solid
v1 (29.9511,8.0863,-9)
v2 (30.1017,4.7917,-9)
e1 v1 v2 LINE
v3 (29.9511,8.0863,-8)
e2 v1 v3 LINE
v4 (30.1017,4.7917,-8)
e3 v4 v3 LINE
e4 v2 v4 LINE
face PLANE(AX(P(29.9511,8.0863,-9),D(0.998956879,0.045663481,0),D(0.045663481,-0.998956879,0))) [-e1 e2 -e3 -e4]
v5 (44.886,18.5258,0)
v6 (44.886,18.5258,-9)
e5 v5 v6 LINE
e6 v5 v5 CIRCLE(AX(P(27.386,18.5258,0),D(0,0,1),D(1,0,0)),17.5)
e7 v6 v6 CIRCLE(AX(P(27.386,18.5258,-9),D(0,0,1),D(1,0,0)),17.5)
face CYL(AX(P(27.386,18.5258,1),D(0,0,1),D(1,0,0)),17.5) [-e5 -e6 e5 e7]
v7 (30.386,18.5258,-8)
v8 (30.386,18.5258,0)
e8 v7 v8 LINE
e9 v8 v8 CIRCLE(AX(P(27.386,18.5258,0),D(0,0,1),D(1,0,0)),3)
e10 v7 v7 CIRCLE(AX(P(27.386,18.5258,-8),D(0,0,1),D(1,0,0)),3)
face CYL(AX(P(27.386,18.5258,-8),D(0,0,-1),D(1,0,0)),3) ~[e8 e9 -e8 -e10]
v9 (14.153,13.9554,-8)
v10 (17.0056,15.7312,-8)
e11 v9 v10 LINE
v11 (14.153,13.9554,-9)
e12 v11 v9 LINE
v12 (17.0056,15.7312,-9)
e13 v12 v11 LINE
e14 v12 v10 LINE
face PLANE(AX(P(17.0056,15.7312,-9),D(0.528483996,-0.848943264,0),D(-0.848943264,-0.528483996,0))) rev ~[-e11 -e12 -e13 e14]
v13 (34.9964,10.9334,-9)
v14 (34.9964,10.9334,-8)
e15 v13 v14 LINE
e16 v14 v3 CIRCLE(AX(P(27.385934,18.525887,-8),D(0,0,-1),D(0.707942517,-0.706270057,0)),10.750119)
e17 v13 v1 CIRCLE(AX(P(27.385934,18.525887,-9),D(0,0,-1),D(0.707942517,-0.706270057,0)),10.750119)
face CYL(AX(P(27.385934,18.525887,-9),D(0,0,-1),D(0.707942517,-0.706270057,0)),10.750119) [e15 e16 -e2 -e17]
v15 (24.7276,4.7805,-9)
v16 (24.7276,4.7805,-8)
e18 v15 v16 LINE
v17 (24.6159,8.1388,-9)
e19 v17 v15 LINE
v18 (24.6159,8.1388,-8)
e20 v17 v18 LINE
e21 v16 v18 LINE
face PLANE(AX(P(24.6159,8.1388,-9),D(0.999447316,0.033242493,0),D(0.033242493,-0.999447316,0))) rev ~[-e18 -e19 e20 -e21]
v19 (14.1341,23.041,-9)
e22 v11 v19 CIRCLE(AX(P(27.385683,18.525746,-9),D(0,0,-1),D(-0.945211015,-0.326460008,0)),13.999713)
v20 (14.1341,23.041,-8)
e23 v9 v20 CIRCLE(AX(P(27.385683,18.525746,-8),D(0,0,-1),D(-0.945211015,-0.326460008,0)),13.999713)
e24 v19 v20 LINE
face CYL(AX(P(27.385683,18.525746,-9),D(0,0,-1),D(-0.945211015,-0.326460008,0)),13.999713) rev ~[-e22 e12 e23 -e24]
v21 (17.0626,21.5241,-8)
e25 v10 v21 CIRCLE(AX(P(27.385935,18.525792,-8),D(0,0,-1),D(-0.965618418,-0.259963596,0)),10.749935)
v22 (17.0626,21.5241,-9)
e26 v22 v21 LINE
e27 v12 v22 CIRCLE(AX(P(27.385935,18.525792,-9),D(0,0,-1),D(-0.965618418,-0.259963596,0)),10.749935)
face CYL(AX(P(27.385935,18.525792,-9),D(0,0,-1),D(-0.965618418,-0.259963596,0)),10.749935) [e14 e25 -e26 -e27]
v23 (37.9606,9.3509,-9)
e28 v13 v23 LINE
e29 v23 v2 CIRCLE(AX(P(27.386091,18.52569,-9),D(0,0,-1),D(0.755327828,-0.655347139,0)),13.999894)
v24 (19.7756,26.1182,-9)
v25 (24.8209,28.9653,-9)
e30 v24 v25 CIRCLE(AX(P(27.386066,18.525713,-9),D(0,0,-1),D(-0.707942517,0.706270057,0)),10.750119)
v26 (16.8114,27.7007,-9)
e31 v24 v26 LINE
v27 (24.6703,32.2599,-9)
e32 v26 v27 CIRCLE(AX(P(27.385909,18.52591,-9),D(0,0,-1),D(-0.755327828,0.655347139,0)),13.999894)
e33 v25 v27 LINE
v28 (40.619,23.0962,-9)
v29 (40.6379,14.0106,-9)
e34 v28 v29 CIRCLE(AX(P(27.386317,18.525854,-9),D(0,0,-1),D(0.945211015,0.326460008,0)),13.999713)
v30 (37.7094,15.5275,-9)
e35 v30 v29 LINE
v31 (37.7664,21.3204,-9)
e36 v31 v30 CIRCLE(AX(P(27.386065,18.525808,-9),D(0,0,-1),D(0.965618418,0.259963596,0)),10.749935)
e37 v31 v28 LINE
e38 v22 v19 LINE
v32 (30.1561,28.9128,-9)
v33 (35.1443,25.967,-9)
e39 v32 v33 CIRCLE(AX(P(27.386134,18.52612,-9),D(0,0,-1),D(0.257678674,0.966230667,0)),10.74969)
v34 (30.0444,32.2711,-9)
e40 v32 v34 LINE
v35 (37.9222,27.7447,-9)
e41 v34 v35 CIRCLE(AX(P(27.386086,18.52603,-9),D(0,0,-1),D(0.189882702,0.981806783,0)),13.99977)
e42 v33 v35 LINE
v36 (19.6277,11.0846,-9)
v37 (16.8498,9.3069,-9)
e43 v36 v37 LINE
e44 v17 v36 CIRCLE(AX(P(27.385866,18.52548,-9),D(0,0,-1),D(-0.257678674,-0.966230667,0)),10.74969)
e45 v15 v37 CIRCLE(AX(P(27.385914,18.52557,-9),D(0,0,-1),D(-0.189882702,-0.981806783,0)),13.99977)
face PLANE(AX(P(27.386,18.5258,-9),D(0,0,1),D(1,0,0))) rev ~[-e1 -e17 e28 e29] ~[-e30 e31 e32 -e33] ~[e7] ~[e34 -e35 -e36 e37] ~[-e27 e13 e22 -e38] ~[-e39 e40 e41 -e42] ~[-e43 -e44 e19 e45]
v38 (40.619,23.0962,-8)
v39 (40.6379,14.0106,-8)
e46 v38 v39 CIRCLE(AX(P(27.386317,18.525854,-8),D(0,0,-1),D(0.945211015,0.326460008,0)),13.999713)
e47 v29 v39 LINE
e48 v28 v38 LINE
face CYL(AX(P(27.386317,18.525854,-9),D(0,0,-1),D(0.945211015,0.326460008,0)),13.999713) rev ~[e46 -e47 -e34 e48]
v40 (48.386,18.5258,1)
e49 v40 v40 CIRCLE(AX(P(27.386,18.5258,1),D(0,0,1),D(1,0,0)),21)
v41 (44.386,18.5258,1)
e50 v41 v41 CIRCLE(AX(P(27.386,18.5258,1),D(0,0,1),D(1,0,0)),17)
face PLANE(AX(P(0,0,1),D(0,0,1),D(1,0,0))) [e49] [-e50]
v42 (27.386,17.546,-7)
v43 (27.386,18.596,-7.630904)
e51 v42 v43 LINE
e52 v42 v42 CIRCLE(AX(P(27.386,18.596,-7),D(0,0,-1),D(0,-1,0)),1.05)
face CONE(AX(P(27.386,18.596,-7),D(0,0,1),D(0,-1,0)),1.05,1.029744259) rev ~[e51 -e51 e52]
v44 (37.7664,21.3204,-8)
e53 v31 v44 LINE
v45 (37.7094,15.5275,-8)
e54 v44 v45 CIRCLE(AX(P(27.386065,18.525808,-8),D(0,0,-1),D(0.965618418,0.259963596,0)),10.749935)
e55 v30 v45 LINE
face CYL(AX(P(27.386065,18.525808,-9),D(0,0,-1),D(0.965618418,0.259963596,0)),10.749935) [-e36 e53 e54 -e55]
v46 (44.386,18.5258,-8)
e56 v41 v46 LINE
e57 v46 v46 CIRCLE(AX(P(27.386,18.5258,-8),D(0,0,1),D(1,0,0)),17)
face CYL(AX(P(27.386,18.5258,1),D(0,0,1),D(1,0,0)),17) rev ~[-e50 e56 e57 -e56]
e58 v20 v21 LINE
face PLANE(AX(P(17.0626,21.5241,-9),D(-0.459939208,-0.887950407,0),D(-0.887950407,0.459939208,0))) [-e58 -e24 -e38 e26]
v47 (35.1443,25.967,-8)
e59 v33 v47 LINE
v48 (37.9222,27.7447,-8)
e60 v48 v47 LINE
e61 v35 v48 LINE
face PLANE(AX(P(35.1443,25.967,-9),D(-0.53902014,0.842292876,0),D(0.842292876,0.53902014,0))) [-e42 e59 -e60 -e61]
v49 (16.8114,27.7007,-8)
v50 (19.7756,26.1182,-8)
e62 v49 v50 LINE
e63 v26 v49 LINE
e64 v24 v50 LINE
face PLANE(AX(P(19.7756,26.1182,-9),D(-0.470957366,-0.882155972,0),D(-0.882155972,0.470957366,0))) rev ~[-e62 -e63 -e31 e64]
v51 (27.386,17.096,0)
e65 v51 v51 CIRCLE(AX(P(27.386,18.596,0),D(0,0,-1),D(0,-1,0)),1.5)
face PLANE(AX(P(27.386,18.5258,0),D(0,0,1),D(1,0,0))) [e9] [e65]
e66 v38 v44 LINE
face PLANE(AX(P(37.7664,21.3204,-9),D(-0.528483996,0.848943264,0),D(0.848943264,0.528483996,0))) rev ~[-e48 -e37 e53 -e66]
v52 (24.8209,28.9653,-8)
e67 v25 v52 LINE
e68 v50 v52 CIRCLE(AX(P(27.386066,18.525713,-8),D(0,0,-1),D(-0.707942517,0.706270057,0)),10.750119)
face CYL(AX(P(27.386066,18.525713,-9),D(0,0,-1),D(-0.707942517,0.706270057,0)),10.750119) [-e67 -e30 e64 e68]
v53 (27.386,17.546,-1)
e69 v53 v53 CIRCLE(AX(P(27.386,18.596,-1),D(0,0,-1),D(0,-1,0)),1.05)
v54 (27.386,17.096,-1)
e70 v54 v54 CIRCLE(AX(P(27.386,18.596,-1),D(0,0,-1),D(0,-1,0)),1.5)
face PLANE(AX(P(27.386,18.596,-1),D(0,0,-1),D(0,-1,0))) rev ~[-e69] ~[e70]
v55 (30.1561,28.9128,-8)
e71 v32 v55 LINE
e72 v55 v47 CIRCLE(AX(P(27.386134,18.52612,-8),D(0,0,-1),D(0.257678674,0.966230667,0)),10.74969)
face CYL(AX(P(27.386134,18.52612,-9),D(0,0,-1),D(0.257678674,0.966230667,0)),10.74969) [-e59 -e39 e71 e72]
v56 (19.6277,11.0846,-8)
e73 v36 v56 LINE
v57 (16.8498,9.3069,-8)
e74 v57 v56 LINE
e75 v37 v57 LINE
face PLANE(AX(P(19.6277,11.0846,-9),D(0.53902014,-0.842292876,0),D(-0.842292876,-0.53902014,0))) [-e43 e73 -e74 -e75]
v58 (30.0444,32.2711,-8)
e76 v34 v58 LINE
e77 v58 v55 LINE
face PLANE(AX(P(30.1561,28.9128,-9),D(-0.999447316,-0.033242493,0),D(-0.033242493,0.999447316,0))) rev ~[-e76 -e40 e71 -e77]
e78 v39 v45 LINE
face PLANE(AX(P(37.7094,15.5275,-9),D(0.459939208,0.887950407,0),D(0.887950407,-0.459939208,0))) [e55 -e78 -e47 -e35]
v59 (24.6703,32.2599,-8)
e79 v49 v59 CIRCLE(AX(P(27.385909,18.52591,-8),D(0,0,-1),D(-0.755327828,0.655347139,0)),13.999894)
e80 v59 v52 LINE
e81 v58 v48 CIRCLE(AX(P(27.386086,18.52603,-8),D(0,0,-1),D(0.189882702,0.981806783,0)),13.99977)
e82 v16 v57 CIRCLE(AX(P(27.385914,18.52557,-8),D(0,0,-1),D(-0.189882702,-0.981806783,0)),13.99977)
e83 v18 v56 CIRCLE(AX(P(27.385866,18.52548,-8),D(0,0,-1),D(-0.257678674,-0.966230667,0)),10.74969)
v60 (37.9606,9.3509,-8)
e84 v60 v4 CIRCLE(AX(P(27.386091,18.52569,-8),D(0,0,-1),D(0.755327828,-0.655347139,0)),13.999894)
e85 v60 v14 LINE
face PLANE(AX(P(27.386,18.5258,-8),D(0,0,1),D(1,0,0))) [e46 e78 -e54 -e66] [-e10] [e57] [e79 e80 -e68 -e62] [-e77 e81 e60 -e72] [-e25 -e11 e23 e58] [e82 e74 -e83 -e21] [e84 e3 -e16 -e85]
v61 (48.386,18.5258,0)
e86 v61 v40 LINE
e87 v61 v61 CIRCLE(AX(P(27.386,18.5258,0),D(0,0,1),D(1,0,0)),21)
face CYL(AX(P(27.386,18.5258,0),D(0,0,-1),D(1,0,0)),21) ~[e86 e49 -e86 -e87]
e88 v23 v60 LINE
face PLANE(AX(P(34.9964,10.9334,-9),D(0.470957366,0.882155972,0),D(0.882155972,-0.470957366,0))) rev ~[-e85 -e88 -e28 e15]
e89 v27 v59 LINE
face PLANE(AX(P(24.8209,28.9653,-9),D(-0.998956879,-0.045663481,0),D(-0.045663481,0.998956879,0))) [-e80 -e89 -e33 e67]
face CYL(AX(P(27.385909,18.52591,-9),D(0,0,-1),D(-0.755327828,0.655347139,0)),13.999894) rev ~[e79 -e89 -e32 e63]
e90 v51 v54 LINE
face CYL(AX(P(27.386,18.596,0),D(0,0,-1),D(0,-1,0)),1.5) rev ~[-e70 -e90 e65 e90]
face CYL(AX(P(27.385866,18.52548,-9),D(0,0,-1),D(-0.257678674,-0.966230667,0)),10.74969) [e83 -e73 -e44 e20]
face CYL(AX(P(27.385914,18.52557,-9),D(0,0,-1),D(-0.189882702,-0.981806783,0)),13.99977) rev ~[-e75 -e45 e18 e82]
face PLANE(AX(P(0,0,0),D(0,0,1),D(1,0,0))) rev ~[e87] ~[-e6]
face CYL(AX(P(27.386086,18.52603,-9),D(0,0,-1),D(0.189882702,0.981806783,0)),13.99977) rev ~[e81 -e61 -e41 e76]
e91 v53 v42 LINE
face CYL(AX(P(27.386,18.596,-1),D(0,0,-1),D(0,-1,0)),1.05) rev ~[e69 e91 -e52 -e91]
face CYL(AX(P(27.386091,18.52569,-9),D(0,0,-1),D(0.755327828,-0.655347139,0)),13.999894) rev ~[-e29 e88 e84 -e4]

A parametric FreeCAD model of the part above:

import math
import FreeCAD as App
import Part
import Sketcher

V = App.Vector

doc = App.newDocument("Part")
params = doc.addObject("Spreadsheet::Sheet", "Params")
for row, (alias, value) in enumerate([
    ("sketch1_diameter", "42 mm"),
    ("sketch1_diameter2", "34 mm"),
    ("pad1_length", "1 mm"),
    ("sketch2_diameter", "35 mm"),
    ("pad2_length", "10 mm"),
    ("sketch3_diameter", "34 mm"),
    ("pocket1_length", "9 mm"),
    ("sketch4_radius", "14 mm"),
    ("sketch4_radius2", "10.75 mm"),
    ("pocket2_length", "2 mm"),
    ("sketch5_diameter", "6 mm"),
    ("pad3_length", "8 mm"),
    ("sketch6_diameter", "2.1 mm"),
    ("hole_diameter", "2.1 mm"),
    ("hole_depth", "7 mm"),
    ("hole_cbore_diameter", "3 mm"),
    ("hole_cbore_depth", "1 mm"),
], start=1):
    params.set(f"A{row}", alias)
    params.set(f"B{row}", "=" + value)
    params.setAlias(f"B{row}", alias)

body = doc.addObject("PartDesign::Body", "Body")

# Sketch on XY plane
sketch1 = body.newObject("Sketcher::SketchObject", "Sketch")
sketch1.AttachmentSupport = (doc.getObject("XY_Plane"), [""])
sketch1.MapMode = "FlatFace"
sketch1.addGeometry([
    Part.Circle(V(27, 19, 0), V(0, 0, 1), 21),
    Part.Circle(V(27, 19, 0), V(0, 0, 1), 17),
], False)
sketch1.addConstraint([
    Sketcher.Constraint("Coincident", 1, 3, 0, 3),
    Sketcher.Constraint("Diameter", 0, 42.0),
    Sketcher.Constraint("Diameter", 1, 34.0),
    Sketcher.Constraint("DistanceX", -1, 1, 0, 3, 27.386),
    Sketcher.Constraint("DistanceY", -1, 1, 0, 3, 18.5258),
])
sketch1.setExpression("Constraints[1]", "Params.sketch1_diameter")
sketch1.setExpression("Constraints[2]", "Params.sketch1_diameter2")
pad1 = body.newObject("PartDesign::Pad", "Pad")
pad1.Profile = sketch1
pad1.setExpression("Length", "Params.pad1_length")

# Sketch on XY plane
sketch2 = body.newObject("Sketcher::SketchObject", "Sketch001")
sketch2.AttachmentSupport = (doc.getObject("XY_Plane"), [""])
sketch2.MapMode = "FlatFace"
sketch2.AttachmentOffset = App.Placement(V(0, 0, 1), App.Rotation())
sketch2.addGeometry(Part.Circle(V(27, 19, 0), V(0, 0, 1), 18), False)
sketch2.addConstraint([
    Sketcher.Constraint("Diameter", 0, 35.0),
    Sketcher.Constraint("DistanceX", -1, 1, 0, 3, 27.386),
    Sketcher.Constraint("DistanceY", -1, 1, 0, 3, 18.5258),
])
sketch2.setExpression("Constraints[0]", "Params.sketch2_diameter")
pad2 = body.newObject("PartDesign::Pad", "Pad001")
pad2.Profile = sketch2
pad2.setExpression("Length", "Params.pad2_length")
pad2.Reversed = True

# Sketch on XY plane
sketch3 = body.newObject("Sketcher::SketchObject", "Sketch002")
sketch3.AttachmentSupport = (doc.getObject("XY_Plane"), [""])
sketch3.MapMode = "FlatFace"
sketch3.AttachmentOffset = App.Placement(V(0, 0, 1), App.Rotation())
sketch3.addGeometry(Part.Circle(V(27, 19, 0), V(0, 0, 1), 17), False)
sketch3.addConstraint([
    Sketcher.Constraint("Diameter", 0, 34.0),
    Sketcher.Constraint("DistanceX", -1, 1, 0, 3, 27.386),
    Sketcher.Constraint("DistanceY", -1, 1, 0, 3, 18.5258),
])
sketch3.setExpression("Constraints[0]", "Params.sketch3_diameter")
pocket1 = body.newObject("PartDesign::Pocket", "Pocket")
pocket1.Profile = sketch3
pocket1.setExpression("Length", "Params.pocket1_length")

# Sketch on XY plane
sketch4 = body.newObject("Sketcher::SketchObject", "Sketch003")
sketch4.AttachmentSupport = (doc.getObject("XY_Plane"), [""])
sketch4.MapMode = "FlatFace"
sketch4.AttachmentOffset = App.Placement(V(0, 0, -9), App.Rotation())
sketch4.addGeometry([
    Part.ArcOfCircle(Part.Circle(V(27.4, 18.5, 0), V(0, 0, 1), 10.7), math.radians(-16), math.radians(15)),  # 0
    Part.LineSegment(V(37.8, 21.3, 0), V(40.6, 23.1, 0)),  # 1
    Part.ArcOfCircle(Part.Circle(V(27.4, 18.5, 0), V(0, 0, 1), 14), math.radians(-19), math.radians(19)),  # 2
    Part.LineSegment(V(40.6, 14, 0), V(37.7, 15.5, 0)),  # 3
    Part.ArcOfCircle(Part.Circle(V(27.4, 18.5, 0), V(0, 0, 1), 10.7), math.radians(44), math.radians(75)),  # 4
    Part.LineSegment(V(30.2, 28.9, 0), V(30, 32.3, 0)),  # 5
    Part.ArcOfCircle(Part.Circle(V(27.4, 18.5, 0), V(0, 0, 1), 14), math.radians(41), math.radians(79)),  # 6
    Part.LineSegment(V(37.9, 27.7, 0), V(35.1, 26, 0)),  # 7
    Part.ArcOfCircle(Part.Circle(V(27.4, 18.5, 0), V(0, 0, 1), 10.8), math.radians(104), math.radians(135)),  # 8
    Part.LineSegment(V(19.8, 26.1, 0), V(16.8, 27.7, 0)),  # 9
    Part.ArcOfCircle(Part.Circle(V(27.4, 18.5, 0), V(0, 0, 1), 14), math.radians(101), math.radians(139)),  # 10
    Part.LineSegment(V(24.7, 32.3, 0), V(24.8, 29, 0)),  # 11
    Part.ArcOfCircle(Part.Circle(V(27.4, 18.5, 0), V(0, 0, 1), 10.7), math.radians(164), math.radians(195)),  # 12
    Part.LineSegment(V(17, 15.7, 0), V(14.2, 14, 0)),  # 13
    Part.ArcOfCircle(Part.Circle(V(27.4, 18.5, 0), V(0, 0, 1), 14), math.radians(161), math.radians(199)),  # 14
    Part.LineSegment(V(14.1, 23, 0), V(17.1, 21.5, 0)),  # 15
    Part.ArcOfCircle(Part.Circle(V(27.4, 18.5, 0), V(0, 0, 1), 10.7), math.radians(-136), math.radians(-105)),  # 16
    Part.LineSegment(V(24.6, 8.1, 0), V(24.7, 4.8, 0)),  # 17
    Part.ArcOfCircle(Part.Circle(V(27.4, 18.5, 0), V(0, 0, 1), 14), math.radians(-139), math.radians(-101)),  # 18
    Part.LineSegment(V(16.8, 9.3, 0), V(19.6, 11.1, 0)),  # 19
    Part.ArcOfCircle(Part.Circle(V(27.4, 18.5, 0), V(0, 0, 1), 10.8), math.radians(-76), math.radians(-45)),  # 20
    Part.LineSegment(V(35, 10.9, 0), V(38, 9.4, 0)),  # 21
    Part.ArcOfCircle(Part.Circle(V(27.4, 18.5, 0), V(0, 0, 1), 14), math.radians(-79), math.radians(-41)),  # 22
    Part.LineSegment(V(30.1, 4.8, 0), V(30, 8.1, 0)),  # 23
], False)
sketch4.addConstraint([
    Sketcher.Constraint("Coincident", 0, 2, 1, 1),
    Sketcher.Constraint("Coincident", 1, 2, 2, 2),
    Sketcher.Constraint("Coincident", 2, 1, 3, 1),
    Sketcher.Constraint("Coincident", 3, 2, 0, 1),
    Sketcher.Constraint("Coincident", 4, 2, 5, 1),
    Sketcher.Constraint("Coincident", 5, 2, 6, 2),
    Sketcher.Constraint("Coincident", 6, 1, 7, 1),
    Sketcher.Constraint("Coincident", 7, 2, 4, 1),
    Sketcher.Constraint("Coincident", 8, 2, 9, 1),
    Sketcher.Constraint("Coincident", 9, 2, 10, 2),
    Sketcher.Constraint("Coincident", 10, 1, 11, 1),
    Sketcher.Constraint("Coincident", 11, 2, 8, 1),
    Sketcher.Constraint("Coincident", 12, 2, 13, 1),
    Sketcher.Constraint("Coincident", 13, 2, 14, 2),
    Sketcher.Constraint("Coincident", 14, 1, 15, 1),
    Sketcher.Constraint("Coincident", 15, 2, 12, 1),
    Sketcher.Constraint("Coincident", 16, 2, 17, 1),
    Sketcher.Constraint("Coincident", 17, 2, 18, 2),
    Sketcher.Constraint("Coincident", 18, 1, 19, 1),
    Sketcher.Constraint("Coincident", 19, 2, 16, 1),
    Sketcher.Constraint("Coincident", 20, 2, 21, 1),
    Sketcher.Constraint("Coincident", 21, 2, 22, 2),
    Sketcher.Constraint("Coincident", 22, 1, 23, 1),
    Sketcher.Constraint("Coincident", 23, 2, 20, 1),
    Sketcher.Constraint("Coincident", 2, 3, 0, 3),
    Sketcher.Constraint("Coincident", 4, 3, 0, 3),
    Sketcher.Constraint("Coincident", 6, 3, 0, 3),
    Sketcher.Constraint("Coincident", 8, 3, 0, 3),
    Sketcher.Constraint("Coincident", 10, 3, 0, 3),
    Sketcher.Constraint("Coincident", 12, 3, 0, 3),
    Sketcher.Constraint("Coincident", 14, 3, 0, 3),
    Sketcher.Constraint("Coincident", 16, 3, 0, 3),
    Sketcher.Constraint("Coincident", 18, 3, 0, 3),
    Sketcher.Constraint("Coincident", 20, 3, 0, 3),
    Sketcher.Constraint("Coincident", 22, 3, 0, 3),
    Sketcher.Constraint("Equal", 0, 4),
    Sketcher.Constraint("Equal", 2, 6),
    Sketcher.Constraint("Equal", 4, 8),
    Sketcher.Constraint("Equal", 6, 10),
    Sketcher.Constraint("Equal", 8, 12),
    Sketcher.Constraint("Equal", 10, 14),
    Sketcher.Constraint("Equal", 12, 16),
    Sketcher.Constraint("Equal", 14, 18),
    Sketcher.Constraint("Equal", 16, 20),
    Sketcher.Constraint("Equal", 18, 22),
    Sketcher.Constraint("Parallel", 1, 13),
    Sketcher.Constraint("Parallel", 3, 15),
    Sketcher.Constraint("Parallel", 5, 17),
    Sketcher.Constraint("Parallel", 7, 19),
    Sketcher.Constraint("Parallel", 9, 21),
    Sketcher.Constraint("Parallel", 11, 23),
    Sketcher.Constraint("Equal", 1, 5),
    Sketcher.Constraint("Equal", 3, 7),
    Sketcher.Constraint("Equal", 5, 9),
    Sketcher.Constraint("Equal", 7, 11),
    Sketcher.Constraint("Equal", 9, 13),
    Sketcher.Constraint("Equal", 11, 15),
    Sketcher.Constraint("Equal", 13, 17),
    Sketcher.Constraint("Equal", 15, 19),
    Sketcher.Constraint("Equal", 17, 21),
    Sketcher.Constraint("Equal", 19, 23),
    Sketcher.Constraint("Radius", 2, 14.0),
    Sketcher.Constraint("Radius", 0, 10.75),
    Sketcher.Constraint("DistanceX", 5, 2, 7, 2, 5.1),
    Sketcher.Constraint("DistanceY", -1, 1, 10, 1, 32.26),
    Sketcher.Constraint("DistanceX", 0, 3, 4, 2, 2.77),
    Sketcher.Constraint("DistanceX", 20, 2, 0, 2, 2.77),
    Sketcher.Constraint("Distance", 3, 3.298),
    Sketcher.Constraint("DistanceX", -1, 1, 0, 3, 27.386),
    Sketcher.Constraint("DistanceX", -1, 1, 1, 2, 40.619),
    Sketcher.Constraint("DistanceX", -1, 1, 2, 1, 40.638),
    Sketcher.Constraint("DistanceY", -1, 1, 5, 2, 32.271),
    Sketcher.Constraint("DistanceY", -1, 1, 7, 2, 25.967),
])
sketch4.setExpression("Constraints[61]", "Params.sketch4_radius")
sketch4.setExpression("Constraints[62]", "Params.sketch4_radius2")
pocket2 = body.newObject("PartDesign::Pocket", "Pocket001")
pocket2.Profile = sketch4
pocket2.setExpression("Length", "Params.pocket2_length")
pocket2.Reversed = True

# Sketch on XY plane
sketch5 = body.newObject("Sketcher::SketchObject", "Sketch004")
sketch5.AttachmentSupport = (doc.getObject("XY_Plane"), [""])
sketch5.MapMode = "FlatFace"
sketch5.AttachmentOffset = App.Placement(V(0, 0, -8), App.Rotation())
sketch5.addGeometry(Part.Circle(V(27.4, 18.5, 0), V(0, 0, 1), 3), False)
sketch5.addConstraint([
    Sketcher.Constraint("Diameter", 0, 6.0),
    Sketcher.Constraint("DistanceX", -1, 1, 0, 3, 27.386),
    Sketcher.Constraint("DistanceY", -1, 1, 0, 3, 18.5258),
])
sketch5.setExpression("Constraints[0]", "Params.sketch5_diameter")
pad3 = body.newObject("PartDesign::Pad", "Pad002")
pad3.Profile = sketch5
pad3.setExpression("Length", "Params.pad3_length")

# Sketch on XY plane
sketch6 = body.newObject("Sketcher::SketchObject", "Sketch005")
sketch6.AttachmentSupport = (doc.getObject("XY_Plane"), [""])
sketch6.MapMode = "FlatFace"
sketch6.addGeometry(Part.Circle(V(27.4, 18.6, 0), V(0, 0, 1), 1.1), False)
sketch6.addConstraint([
    Sketcher.Constraint("Diameter", 0, 2.1),
    Sketcher.Constraint("DistanceX", -1, 1, 0, 3, 27.386),
    Sketcher.Constraint("DistanceY", -1, 1, 0, 3, 18.596),
])
sketch6.setExpression("Constraints[0]", "Params.sketch6_diameter")
doc.recompute()
hole = body.newObject("PartDesign::Hole", "Hole")
hole.Profile = sketch6
hole.ThreadType = "None"
hole.setExpression("Diameter", "Params.hole_diameter")
hole.DepthType = "Dimension"
hole.setExpression("Depth", "Params.hole_depth")
hole.DrillPoint = "Angled"
hole.DrillPointAngle = 118
hole.HoleCutType = "Counterbore"
hole.setExpression("HoleCutDiameter", "Params.hole_cbore_diameter")
hole.setExpression("HoleCutDepth", "Params.hole_cbore_depth")

doc.recompute()
